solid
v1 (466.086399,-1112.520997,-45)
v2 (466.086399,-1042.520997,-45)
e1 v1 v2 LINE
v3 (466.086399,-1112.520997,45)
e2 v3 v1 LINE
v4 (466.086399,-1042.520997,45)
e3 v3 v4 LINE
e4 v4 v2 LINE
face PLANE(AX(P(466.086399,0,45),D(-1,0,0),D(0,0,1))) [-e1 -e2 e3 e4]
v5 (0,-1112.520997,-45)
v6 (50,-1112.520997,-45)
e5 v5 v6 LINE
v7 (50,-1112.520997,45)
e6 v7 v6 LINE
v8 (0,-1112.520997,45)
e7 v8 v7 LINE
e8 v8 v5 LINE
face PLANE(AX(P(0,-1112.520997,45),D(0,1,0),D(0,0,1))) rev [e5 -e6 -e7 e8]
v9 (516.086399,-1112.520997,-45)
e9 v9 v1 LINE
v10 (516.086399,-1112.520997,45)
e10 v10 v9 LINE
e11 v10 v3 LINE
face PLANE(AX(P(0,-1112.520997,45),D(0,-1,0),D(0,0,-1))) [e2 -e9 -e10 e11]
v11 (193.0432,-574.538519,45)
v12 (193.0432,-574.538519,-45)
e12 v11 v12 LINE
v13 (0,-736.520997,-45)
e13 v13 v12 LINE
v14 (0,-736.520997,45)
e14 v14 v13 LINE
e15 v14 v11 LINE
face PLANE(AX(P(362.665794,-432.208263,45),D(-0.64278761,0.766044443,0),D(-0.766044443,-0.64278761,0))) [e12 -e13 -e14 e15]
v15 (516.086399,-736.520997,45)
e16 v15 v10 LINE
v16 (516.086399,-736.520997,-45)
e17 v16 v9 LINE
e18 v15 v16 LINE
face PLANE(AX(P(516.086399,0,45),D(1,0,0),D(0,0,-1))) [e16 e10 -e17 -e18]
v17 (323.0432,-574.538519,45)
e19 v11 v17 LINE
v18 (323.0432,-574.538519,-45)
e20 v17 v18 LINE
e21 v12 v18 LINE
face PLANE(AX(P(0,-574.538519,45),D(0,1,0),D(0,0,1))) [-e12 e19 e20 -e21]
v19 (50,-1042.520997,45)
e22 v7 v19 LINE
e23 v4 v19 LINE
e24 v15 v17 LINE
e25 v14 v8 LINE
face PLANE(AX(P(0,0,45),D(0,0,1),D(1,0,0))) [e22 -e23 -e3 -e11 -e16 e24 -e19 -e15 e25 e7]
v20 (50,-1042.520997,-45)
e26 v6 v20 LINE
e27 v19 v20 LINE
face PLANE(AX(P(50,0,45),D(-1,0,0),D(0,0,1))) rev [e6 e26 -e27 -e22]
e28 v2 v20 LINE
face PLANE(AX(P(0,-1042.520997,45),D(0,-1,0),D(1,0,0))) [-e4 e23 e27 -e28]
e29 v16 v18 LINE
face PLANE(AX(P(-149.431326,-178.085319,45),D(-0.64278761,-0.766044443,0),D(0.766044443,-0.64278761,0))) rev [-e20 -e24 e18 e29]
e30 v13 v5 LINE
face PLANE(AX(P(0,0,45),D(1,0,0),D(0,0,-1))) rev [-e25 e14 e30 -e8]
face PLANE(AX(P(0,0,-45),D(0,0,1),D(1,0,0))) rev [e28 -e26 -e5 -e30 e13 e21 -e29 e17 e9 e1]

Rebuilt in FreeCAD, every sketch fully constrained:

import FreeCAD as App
import Part
import Sketcher
from FreeCAD import Vector
Q = App.Units.Quantity


def add_polygon(sketch, points):
    """Adds a closed chain of lines whose ends are joined by coincident constraints."""
    first, n = sketch.GeometryCount, len(points)
    for a, b in zip(points, points[1:] + points[:1]):
        sketch.addGeometry(Part.LineSegment(App.Vector(*a, 0), App.Vector(*b, 0)), False)
    for i in range(n):
        sketch.addConstraint(Sketcher.Constraint("Coincident", first + i, 2, first + (i + 1) % n, 1))

doc = App.newDocument("Part")
body = doc.addObject("PartDesign::Body", "Body")

sketch1 = doc.addObject("Sketcher::SketchObject", "Sketch")
body.addObject(sketch1)
sketch1.AttachmentSupport = (doc.XY_Plane, [""])
sketch1.MapMode = "FlatFace"
add_polygon(sketch1, [(0, -1113), (50, -1113), (50, -1043), (466, -1043), (466, -1113), (516, -1113), (516, -737), (466, -695), (323, -575), (193, -575), (50, -695), (0, -737)])
sketch1.addConstraint([
    Sketcher.Constraint("Horizontal", 0),
    Sketcher.Constraint("Vertical", 1),
    Sketcher.Constraint("Horizontal", 2),
    Sketcher.Constraint("Vertical", 3),
    Sketcher.Constraint("Horizontal", 4),
    Sketcher.Constraint("Vertical", 5),
    Sketcher.Constraint("Horizontal", 8),
    Sketcher.Constraint("Vertical", 11),
    Sketcher.Constraint("PointOnObject", 10, 2, -2),
    Sketcher.Constraint("Parallel", 6, 7),
    Sketcher.Constraint("Parallel", 9, 10),
    Sketcher.Constraint("Horizontal", 0, 2, 3, 2),
    Sketcher.Constraint("Horizontal", 6, 2, 9, 2),
    Sketcher.Constraint("Horizontal", 5, 2, 10, 2),
    Sketcher.Constraint("Vertical", 3, 2, 6, 2),
    Sketcher.Constraint("Vertical", 1, 2, 9, 2),
    Sketcher.Constraint("Equal", 0, 4),
    Sketcher.Constraint("DistanceX", 0, 1, 0, 2, 50.0),
    Sketcher.Constraint("DistanceX", 8, 2, 8, 1, 130.0),
    Sketcher.Constraint("DistanceY", 1, 1, 1, 2, 70.0),
    Sketcher.Constraint("DistanceY", 5, 1, 5, 2, 376.0),
    Sketcher.Constraint("Angle", 6, Q("140 deg")),
    Sketcher.Constraint("DistanceX", 2, 1, 2, 2, 416.086399),
    Sketcher.Constraint("DistanceY", 7, 2, -1, 1, 574.538519),
])
pad1 = doc.addObject("PartDesign::Pad", "Pad")
body.addObject(pad1)
pad1.Profile = sketch1
pad1.Length = 90
pad1.Midplane = True

doc.recompute()
